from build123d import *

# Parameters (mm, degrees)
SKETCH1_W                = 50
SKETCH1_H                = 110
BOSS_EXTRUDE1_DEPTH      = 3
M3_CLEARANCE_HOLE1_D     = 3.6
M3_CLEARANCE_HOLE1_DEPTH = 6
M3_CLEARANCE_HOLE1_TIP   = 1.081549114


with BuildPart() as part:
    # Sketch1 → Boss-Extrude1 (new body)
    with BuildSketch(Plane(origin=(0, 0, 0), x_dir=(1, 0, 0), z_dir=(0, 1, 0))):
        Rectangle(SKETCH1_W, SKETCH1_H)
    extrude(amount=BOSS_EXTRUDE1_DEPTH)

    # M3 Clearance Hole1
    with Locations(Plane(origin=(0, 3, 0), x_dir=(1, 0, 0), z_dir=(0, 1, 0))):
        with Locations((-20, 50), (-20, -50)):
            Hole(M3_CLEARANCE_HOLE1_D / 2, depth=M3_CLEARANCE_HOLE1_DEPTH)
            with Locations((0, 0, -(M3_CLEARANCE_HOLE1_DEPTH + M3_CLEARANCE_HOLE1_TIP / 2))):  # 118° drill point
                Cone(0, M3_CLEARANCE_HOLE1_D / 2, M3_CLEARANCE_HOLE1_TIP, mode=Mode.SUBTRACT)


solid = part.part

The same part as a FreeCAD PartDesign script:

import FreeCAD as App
import Part
import Sketcher
from FreeCAD import Vector

doc = App.newDocument("Part")
params = doc.addObject("Spreadsheet::Sheet", "Params")
for row, (alias, value) in enumerate([
    ("sketch1_width", "50 mm"),
    ("sketch1_height", "110 mm"),
    ("pad1_length", "3 mm"),
    ("sketch2_diameter", "3.6 mm"),
    ("hole_diameter", "3.6 mm"),
    ("hole_depth", "6 mm"),
], start=1):
    params.set(f"A{row}", alias)
    params.set(f"B{row}", "=" + value)
    params.setAlias(f"B{row}", alias)

body = doc.addObject("PartDesign::Body", "Body")

# Sketch on XZ plane
sketch1 = doc.addObject("Sketcher::SketchObject", "Sketch")
body.addObject(sketch1)
sketch1.AttachmentSupport = (doc.XZ_Plane, [""])
sketch1.MapMode = "FlatFace"
sketch1.addGeometry(Part.LineSegment(Vector(-25, -55, 0), Vector(-25, 55, 0)), False)
sketch1.addGeometry(Part.LineSegment(Vector(-25, 55, 0), Vector(25, 55, 0)), False)
sketch1.addGeometry(Part.LineSegment(Vector(25, 55, 0), Vector(25, -55, 0)), False)
sketch1.addGeometry(Part.LineSegment(Vector(25, -55, 0), Vector(-25, -55, 0)), False)
sketch1.addConstraint(Sketcher.Constraint("Coincident", 0, 2, 1, 1))
sketch1.addConstraint(Sketcher.Constraint("Coincident", 1, 2, 2, 1))
sketch1.addConstraint(Sketcher.Constraint("Coincident", 2, 2, 3, 1))
sketch1.addConstraint(Sketcher.Constraint("Coincident", 3, 2, 0, 1))
sketch1.addConstraint(Sketcher.Constraint("Vertical", 0))
sketch1.addConstraint(Sketcher.Constraint("Horizontal", 1))
sketch1.addConstraint(Sketcher.Constraint("Vertical", 2))
sketch1.addConstraint(Sketcher.Constraint("Horizontal", 3))
sketch1.addConstraint(Sketcher.Constraint("Symmetric", 0, 2, 2, 2, -1, 1))
sketch1.addConstraint(Sketcher.Constraint("DistanceX", 1, 1, 1, 2, 50.0))
sketch1.addConstraint(Sketcher.Constraint("DistanceY", 0, 1, 0, 2, 110.0))
sketch1.setExpression("Constraints[9]", "Params.sketch1_width")
sketch1.setExpression("Constraints[10]", "Params.sketch1_height")
pad1 = doc.addObject("PartDesign::Pad", "Pad")
body.addObject(pad1)
pad1.Profile = sketch1
pad1.setExpression("Length", "Params.pad1_length")
pad1.Reversed = True

# Sketch on XZ plane
sketch2 = doc.addObject("Sketcher::SketchObject", "Sketch001")
body.addObject(sketch2)
sketch2.AttachmentSupport = (doc.XZ_Plane, [""])
sketch2.MapMode = "FlatFace"
sketch2.AttachmentOffset = App.Placement(Vector(0, 0, -3), App.Rotation())
sketch2.addGeometry(Part.Circle(Vector(-20, -50, 0), Vector(0, 0, 1), 1.8), False)
sketch2.addGeometry(Part.Circle(Vector(-20, 50, 0), Vector(0, 0, 1), 1.8), False)
sketch2.addConstraint(Sketcher.Constraint("Equal", 0, 1))
sketch2.addConstraint(Sketcher.Constraint("Symmetric", 0, 3, 1, 3, -1))
sketch2.addConstraint(Sketcher.Constraint("Diameter", 0, 3.6))
sketch2.addConstraint(Sketcher.Constraint("DistanceX", 0, 3, -1, 1, 20.0))
sketch2.addConstraint(Sketcher.Constraint("DistanceY", 0, 3, -1, 1, 50.0))
sketch2.setExpression("Constraints[2]", "Params.sketch2_diameter")
doc.recompute()
hole = doc.addObject("PartDesign::Hole", "Hole")
body.addObject(hole)
hole.Profile = sketch2
hole.ThreadType = "None"
hole.setExpression("Diameter", "Params.hole_diameter")
hole.DepthType = "Dimension"
hole.setExpression("Depth", "Params.hole_depth")
hole.DrillPoint = "Angled"
hole.DrillPointAngle = 118
hole.Reversed = True

doc.recompute()
